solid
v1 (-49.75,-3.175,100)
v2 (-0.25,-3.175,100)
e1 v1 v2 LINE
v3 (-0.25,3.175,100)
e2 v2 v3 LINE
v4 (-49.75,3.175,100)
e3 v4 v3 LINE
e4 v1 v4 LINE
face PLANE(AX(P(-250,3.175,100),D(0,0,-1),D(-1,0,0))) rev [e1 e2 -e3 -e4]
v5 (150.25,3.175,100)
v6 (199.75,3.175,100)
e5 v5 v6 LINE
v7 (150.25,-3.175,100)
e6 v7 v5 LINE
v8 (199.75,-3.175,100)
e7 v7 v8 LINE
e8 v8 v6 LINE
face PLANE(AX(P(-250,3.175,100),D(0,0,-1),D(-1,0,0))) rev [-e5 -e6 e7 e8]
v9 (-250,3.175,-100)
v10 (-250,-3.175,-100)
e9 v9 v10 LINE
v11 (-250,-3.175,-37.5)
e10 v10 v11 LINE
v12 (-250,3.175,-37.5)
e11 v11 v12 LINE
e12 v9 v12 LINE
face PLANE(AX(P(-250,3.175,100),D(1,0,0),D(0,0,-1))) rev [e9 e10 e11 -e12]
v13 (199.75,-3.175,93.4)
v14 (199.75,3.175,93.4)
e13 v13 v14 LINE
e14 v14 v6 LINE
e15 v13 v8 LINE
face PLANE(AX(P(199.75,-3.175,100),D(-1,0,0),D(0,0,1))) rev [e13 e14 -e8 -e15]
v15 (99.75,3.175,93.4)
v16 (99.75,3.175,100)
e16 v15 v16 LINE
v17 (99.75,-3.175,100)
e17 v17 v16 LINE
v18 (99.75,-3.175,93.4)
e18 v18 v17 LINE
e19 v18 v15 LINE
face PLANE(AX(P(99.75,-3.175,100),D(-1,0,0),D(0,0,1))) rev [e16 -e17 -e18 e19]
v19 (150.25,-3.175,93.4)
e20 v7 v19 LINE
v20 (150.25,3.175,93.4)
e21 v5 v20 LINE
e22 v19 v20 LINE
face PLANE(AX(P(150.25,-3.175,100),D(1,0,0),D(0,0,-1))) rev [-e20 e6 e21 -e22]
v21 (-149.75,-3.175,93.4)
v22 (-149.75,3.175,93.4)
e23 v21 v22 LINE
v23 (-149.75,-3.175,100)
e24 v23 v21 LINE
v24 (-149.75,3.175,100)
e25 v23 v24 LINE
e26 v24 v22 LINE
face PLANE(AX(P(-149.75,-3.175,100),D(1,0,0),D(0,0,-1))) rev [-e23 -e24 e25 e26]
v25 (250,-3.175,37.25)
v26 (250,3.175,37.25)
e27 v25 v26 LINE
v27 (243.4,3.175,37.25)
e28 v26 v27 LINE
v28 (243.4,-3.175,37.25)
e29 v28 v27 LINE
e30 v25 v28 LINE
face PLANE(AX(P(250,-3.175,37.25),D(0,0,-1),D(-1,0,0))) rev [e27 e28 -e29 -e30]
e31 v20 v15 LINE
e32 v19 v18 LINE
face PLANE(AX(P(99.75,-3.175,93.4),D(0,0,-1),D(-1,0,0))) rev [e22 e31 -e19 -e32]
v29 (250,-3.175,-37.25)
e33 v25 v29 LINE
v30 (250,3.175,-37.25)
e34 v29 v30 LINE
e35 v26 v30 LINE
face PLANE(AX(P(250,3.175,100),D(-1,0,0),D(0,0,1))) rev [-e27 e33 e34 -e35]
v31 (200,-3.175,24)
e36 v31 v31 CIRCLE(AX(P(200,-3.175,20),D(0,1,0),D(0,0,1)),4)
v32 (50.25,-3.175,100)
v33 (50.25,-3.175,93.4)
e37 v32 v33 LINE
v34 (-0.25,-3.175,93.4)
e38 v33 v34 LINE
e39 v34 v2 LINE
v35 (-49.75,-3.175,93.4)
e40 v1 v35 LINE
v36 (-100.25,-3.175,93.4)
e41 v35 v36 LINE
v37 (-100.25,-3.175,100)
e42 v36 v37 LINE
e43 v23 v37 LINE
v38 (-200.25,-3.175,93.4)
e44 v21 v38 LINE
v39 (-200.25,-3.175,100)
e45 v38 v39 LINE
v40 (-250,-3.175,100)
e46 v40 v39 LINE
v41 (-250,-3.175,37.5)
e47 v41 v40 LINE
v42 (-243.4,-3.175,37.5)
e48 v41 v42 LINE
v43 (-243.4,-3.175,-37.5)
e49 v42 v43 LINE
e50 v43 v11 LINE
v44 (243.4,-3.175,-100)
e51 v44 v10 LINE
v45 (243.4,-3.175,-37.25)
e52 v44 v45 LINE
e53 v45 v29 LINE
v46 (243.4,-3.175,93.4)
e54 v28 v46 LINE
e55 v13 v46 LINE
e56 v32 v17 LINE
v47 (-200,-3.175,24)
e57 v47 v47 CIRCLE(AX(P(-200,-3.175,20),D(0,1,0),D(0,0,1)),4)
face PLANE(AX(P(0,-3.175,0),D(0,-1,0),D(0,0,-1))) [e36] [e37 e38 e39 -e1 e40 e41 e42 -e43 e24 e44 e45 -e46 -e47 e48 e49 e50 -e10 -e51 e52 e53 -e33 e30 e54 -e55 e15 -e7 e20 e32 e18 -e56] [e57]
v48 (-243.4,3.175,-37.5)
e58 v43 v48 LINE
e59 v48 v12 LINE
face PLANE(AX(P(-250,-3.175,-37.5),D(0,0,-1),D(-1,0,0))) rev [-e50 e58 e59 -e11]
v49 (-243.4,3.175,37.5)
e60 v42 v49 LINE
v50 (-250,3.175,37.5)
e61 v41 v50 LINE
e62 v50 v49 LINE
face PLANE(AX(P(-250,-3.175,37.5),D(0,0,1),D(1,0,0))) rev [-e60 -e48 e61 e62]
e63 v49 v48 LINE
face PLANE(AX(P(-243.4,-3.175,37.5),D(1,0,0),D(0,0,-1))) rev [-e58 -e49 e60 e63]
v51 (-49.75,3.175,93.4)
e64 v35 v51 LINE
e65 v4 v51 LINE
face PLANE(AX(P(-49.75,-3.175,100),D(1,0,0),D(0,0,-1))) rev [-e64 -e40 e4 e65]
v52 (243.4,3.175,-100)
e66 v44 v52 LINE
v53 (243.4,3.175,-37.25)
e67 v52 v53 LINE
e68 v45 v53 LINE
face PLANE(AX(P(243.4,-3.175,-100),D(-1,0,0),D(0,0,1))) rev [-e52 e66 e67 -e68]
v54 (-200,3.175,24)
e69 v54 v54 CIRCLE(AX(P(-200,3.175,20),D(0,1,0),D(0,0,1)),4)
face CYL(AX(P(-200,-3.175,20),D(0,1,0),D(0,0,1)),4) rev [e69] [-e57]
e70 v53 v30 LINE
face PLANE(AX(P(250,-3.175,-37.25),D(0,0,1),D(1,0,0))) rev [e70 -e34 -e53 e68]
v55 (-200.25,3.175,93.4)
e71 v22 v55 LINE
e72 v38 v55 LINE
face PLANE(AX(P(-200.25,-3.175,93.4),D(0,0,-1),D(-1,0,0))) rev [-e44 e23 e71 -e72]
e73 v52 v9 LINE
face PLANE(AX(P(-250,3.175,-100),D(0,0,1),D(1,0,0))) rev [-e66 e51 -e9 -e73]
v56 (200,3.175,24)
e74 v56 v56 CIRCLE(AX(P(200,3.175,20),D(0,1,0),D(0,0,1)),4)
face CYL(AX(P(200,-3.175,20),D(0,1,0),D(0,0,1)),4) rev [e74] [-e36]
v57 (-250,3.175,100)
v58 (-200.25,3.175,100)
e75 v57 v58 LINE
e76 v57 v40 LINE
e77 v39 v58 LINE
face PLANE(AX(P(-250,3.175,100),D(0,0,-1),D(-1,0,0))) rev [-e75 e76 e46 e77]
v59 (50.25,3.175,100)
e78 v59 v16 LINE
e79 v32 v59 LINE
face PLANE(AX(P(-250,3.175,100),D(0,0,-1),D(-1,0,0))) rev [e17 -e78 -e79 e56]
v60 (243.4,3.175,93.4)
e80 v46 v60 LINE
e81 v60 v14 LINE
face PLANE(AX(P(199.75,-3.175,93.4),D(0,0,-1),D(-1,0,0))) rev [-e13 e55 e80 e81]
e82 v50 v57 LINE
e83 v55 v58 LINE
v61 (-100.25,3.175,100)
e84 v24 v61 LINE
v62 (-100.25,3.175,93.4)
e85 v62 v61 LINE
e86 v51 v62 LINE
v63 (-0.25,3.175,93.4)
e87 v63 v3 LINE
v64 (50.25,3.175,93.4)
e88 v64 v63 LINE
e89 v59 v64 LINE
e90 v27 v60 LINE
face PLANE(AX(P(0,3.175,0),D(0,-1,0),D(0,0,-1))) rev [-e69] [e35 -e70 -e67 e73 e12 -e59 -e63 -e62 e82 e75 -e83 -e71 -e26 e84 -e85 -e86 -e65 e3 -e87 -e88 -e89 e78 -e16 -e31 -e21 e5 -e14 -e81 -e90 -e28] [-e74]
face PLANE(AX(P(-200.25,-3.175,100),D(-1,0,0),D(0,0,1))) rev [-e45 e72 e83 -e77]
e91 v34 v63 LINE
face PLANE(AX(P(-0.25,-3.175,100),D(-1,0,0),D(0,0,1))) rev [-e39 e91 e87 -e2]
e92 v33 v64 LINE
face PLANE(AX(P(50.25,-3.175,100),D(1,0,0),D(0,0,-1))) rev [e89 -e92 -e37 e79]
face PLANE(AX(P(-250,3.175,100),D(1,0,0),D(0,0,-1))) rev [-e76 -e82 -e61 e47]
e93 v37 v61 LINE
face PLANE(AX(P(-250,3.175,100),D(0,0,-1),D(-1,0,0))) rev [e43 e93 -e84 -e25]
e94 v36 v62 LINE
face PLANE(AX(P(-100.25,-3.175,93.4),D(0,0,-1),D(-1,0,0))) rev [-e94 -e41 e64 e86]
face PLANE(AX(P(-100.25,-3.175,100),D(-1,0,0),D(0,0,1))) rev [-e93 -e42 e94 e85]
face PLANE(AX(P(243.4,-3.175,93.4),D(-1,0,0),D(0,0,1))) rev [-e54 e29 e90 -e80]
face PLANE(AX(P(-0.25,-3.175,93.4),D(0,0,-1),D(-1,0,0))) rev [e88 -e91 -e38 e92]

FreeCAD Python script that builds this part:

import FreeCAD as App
import Part
import Sketcher
from FreeCAD import Vector
Q = App.Units.Quantity


def add_polygon(sketch, points):
    """Adds a closed chain of lines whose ends are joined by coincident constraints."""
    first, n = sketch.GeometryCount, len(points)
    for a, b in zip(points, points[1:] + points[:1]):
        sketch.addGeometry(Part.LineSegment(App.Vector(*a, 0), App.Vector(*b, 0)), False)
    for i in range(n):
        sketch.addConstraint(Sketcher.Constraint("Coincident", first + i, 2, first + (i + 1) % n, 1))

doc = App.newDocument("Part")
body = doc.addObject("PartDesign::Body", "Body")

sketch1 = body.newObject("Sketcher::SketchObject", "Sketch")
sketch1.AttachmentSupport = (doc.getObject("XZ_Plane"), [""])
sketch1.MapMode = "FlatFace"
add_polygon(sketch1, [(-250, -100), (-250, 100), (250, 100), (250, -100)])
sketch1.addConstraint(Sketcher.Constraint("Vertical", 0))
sketch1.addConstraint(Sketcher.Constraint("Horizontal", 1))
sketch1.addConstraint(Sketcher.Constraint("Vertical", 2))
sketch1.addConstraint(Sketcher.Constraint("Horizontal", 3))
sketch1.addConstraint(Sketcher.Constraint("Symmetric", 0, 2, 2, 2, -1, 1))
sketch1.addConstraint(Sketcher.Constraint("DistanceX", 1, 1, 1, 2, Q("500 mm")))
sketch1.addConstraint(Sketcher.Constraint("DistanceY", 0, 1, 0, 2, Q("200 mm")))
pad1 = body.newObject("PartDesign::Pad", "Pad")
pad1.Profile = sketch1
pad1.Length = 6.35
pad1.Midplane = True

sketch2 = body.newObject("Sketcher::SketchObject", "Sketch001")
sketch2.AttachmentSupport = (doc.getObject("XZ_Plane"), [""])
sketch2.MapMode = "FlatFace"
sketch2.AttachmentOffset = App.Placement(Vector(0, 0, -3.175), App.Rotation())
add_polygon(sketch2, [(-200.25, 93.4), (-200.25, 100), (-149.75, 100), (-149.75, 93.4)])
sketch2.addConstraint(Sketcher.Constraint("Vertical", 0))
sketch2.addConstraint(Sketcher.Constraint("Horizontal", 1))
sketch2.addConstraint(Sketcher.Constraint("Vertical", 2))
sketch2.addConstraint(Sketcher.Constraint("Horizontal", 3))
sketch2.addConstraint(Sketcher.Constraint("DistanceX", 1, 1, 1, 2, Q("50.5 mm")))
sketch2.addConstraint(Sketcher.Constraint("DistanceY", 0, 1, 0, 2, Q("6.6 mm")))
sketch2.addConstraint(Sketcher.Constraint("DistanceY", -1, 1, 0, 2, Q("100 mm")))
sketch2.addConstraint(Sketcher.Constraint("DistanceX", 0, 2, -1, 1, Q("200.25 mm")))
pocket1 = body.newObject("PartDesign::Pocket", "Pocket")
pocket1.Profile = sketch2
pocket1.Type = "ThroughAll"
pocket1.Reversed = True
doc.recompute()

linearpattern = body.newObject("PartDesign::LinearPattern", "LinearPattern")
linearpattern.Originals = [pocket1]
linearpattern.Direction = (doc.getObject("X_Axis"), [""])
linearpattern.Mode = "offset"
linearpattern.Offset = 100
linearpattern.Occurrences = 5
body.Tip = linearpattern

sketch3 = body.newObject("Sketcher::SketchObject", "Sketch002")
sketch3.AttachmentSupport = (doc.getObject("XZ_Plane"), [""])
sketch3.MapMode = "FlatFace"
sketch3.AttachmentOffset = App.Placement(Vector(0, 0, -3.175), App.Rotation())
add_polygon(sketch3, [(243.4, 37.25), (243.4, 93.4), (250, 93.4), (250, 37.25)])
add_polygon(sketch3, [(243.4, -100), (243.4, -37.25), (250, -37.25), (250, -100)])
add_polygon(sketch3, [(-250, -37.5), (-250, 37.5), (-243.4, 37.5), (-243.4, -37.5)])
sketch3.addConstraint(Sketcher.Constraint("Vertical", 0))
sketch3.addConstraint(Sketcher.Constraint("Horizontal", 1))
sketch3.addConstraint(Sketcher.Constraint("Vertical", 2))
sketch3.addConstraint(Sketcher.Constraint("Horizontal", 3))
sketch3.addConstraint(Sketcher.Constraint("Vertical", 4))
sketch3.addConstraint(Sketcher.Constraint("Horizontal", 5))
sketch3.addConstraint(Sketcher.Constraint("Vertical", 6))
sketch3.addConstraint(Sketcher.Constraint("Horizontal", 7))
sketch3.addConstraint(Sketcher.Constraint("Vertical", 8))
sketch3.addConstraint(Sketcher.Constraint("Horizontal", 9))
sketch3.addConstraint(Sketcher.Constraint("Vertical", 10))
sketch3.addConstraint(Sketcher.Constraint("Horizontal", 11))
sketch3.addConstraint(Sketcher.Constraint("Symmetric", 3, 2, 4, 2, -1))
sketch3.addConstraint(Sketcher.Constraint("Vertical", 2, 2, 5, 2))
sketch3.addConstraint(Sketcher.Constraint("Equal", 7, 9))
sketch3.addConstraint(Sketcher.Constraint("DistanceY", 8, 1, 8, 2, Q("75 mm")))
sketch3.addConstraint(Sketcher.Constraint("DistanceX", 1, 1, 1, 2, Q("6.6 mm")))
sketch3.addConstraint(Sketcher.Constraint("DistanceX", -1, 1, 1, 2, Q("250 mm")))
sketch3.addConstraint(Sketcher.Constraint("DistanceY", 6, 2, -1, 1, Q("100 mm")))
sketch3.addConstraint(Sketcher.Constraint("DistanceX", 8, 2, -1, 1, Q("250 mm")))
sketch3.addConstraint(Sketcher.Constraint("DistanceY", 0, 1, 0, 2, Q("56.15 mm")))
sketch3.addConstraint(Sketcher.Constraint("DistanceY", 4, 1, 4, 2, Q("62.75 mm")))
sketch3.addConstraint(Sketcher.Constraint("DistanceY", -1, 1, 8, 2, Q("37.5 mm")))
pocket2 = body.newObject("PartDesign::Pocket", "Pocket001")
pocket2.Profile = sketch3
pocket2.Type = "ThroughAll"
pocket2.Reversed = True

sketch4 = body.newObject("Sketcher::SketchObject", "Sketch003")
sketch4.AttachmentSupport = (doc.getObject("XZ_Plane"), [""])
sketch4.MapMode = "FlatFace"
sketch4.AttachmentOffset = App.Placement(Vector(0, 0, -3.175), App.Rotation())
sketch4.addGeometry(Part.Circle(Vector(-200, 20, 0), Vector(0, 0, 1), 4), False)
sketch4.addGeometry(Part.Circle(Vector(200, 20, 0), Vector(0, 0, 1), 4), False)
sketch4.addConstraint(Sketcher.Constraint("Equal", 0, 1))
sketch4.addConstraint(Sketcher.Constraint("Symmetric", 0, 3, 1, 3, -2))
sketch4.addConstraint(Sketcher.Constraint("Diameter", 0, Q("8 mm")))
sketch4.addConstraint(Sketcher.Constraint("DistanceX", 0, 3, -1, 1, Q("200 mm")))
sketch4.addConstraint(Sketcher.Constraint("DistanceY", -1, 1, 0, 3, Q("20 mm")))
pocket3 = body.newObject("PartDesign::Pocket", "Pocket002")
pocket3.Profile = sketch4
pocket3.Type = "ThroughAll"
pocket3.Reversed = True

doc.recompute()
